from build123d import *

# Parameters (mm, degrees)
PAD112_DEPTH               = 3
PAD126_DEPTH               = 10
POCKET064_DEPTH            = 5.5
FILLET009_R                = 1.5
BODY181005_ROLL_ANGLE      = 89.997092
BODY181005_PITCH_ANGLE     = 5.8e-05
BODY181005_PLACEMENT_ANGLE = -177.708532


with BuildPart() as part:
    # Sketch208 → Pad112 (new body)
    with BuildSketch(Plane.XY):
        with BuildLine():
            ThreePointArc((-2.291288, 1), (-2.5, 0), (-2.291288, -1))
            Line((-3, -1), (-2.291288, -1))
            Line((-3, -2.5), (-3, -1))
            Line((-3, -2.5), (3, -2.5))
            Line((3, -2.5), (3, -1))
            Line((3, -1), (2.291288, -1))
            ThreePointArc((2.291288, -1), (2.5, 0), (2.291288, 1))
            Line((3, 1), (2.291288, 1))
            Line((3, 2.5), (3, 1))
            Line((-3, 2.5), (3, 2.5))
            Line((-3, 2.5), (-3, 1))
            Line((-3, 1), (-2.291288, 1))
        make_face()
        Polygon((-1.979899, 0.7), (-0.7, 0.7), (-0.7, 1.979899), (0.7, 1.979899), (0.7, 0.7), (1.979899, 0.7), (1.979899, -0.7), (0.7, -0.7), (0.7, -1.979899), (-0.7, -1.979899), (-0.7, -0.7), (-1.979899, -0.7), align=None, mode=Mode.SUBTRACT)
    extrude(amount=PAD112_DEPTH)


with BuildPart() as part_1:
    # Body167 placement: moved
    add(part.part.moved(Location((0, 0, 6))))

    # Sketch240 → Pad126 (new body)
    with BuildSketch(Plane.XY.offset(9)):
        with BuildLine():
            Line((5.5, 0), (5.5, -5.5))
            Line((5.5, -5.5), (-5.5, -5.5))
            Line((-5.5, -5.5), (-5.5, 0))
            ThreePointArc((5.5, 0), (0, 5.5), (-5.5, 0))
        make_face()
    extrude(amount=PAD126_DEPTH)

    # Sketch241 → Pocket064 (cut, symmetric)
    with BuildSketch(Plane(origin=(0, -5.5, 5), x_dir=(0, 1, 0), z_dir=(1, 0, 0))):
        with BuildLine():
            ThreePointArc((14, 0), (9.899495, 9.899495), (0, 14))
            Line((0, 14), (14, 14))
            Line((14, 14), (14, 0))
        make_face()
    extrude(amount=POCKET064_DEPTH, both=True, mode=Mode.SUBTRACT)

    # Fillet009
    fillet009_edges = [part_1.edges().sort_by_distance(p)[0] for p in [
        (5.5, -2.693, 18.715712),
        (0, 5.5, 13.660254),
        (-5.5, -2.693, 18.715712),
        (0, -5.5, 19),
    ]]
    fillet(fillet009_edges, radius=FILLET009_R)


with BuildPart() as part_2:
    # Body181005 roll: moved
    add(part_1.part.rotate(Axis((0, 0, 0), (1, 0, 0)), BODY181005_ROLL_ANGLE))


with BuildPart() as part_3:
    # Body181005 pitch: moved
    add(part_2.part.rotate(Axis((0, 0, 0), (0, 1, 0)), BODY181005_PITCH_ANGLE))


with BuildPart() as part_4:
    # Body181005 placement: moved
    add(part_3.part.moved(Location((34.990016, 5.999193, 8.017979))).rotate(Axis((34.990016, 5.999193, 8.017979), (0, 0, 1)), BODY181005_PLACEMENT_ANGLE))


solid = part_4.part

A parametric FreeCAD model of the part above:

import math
import FreeCAD as App
import Part
import Sketcher

V = App.Vector


def edges_at(feature, points):
    """Names of the edges that pass closest to the given points."""
    edges = feature.Shape.Edges
    near = lambda p: min(range(len(edges)), key=lambda i: edges[i].distToShape(Part.Vertex(*p))[0])
    return sorted({f"Edge{near(p) + 1}" for p in points})


def add_polygon(sketch, points):
    """Adds a closed chain of lines whose ends are joined by coincident constraints."""
    first, n = sketch.GeometryCount, len(points)
    for a, b in zip(points, points[1:] + points[:1]):
        sketch.addGeometry(Part.LineSegment(App.Vector(*a, 0), App.Vector(*b, 0)), False)
    for i in range(n):
        sketch.addConstraint(Sketcher.Constraint("Coincident", first + i, 2, first + (i + 1) % n, 1))

doc = App.newDocument("Part")
body = doc.addObject("PartDesign::Body", "Body")

# Sketch on XY plane
sketch1 = body.newObject("Sketcher::SketchObject", "Sketch")
sketch1.AttachmentSupport = (doc.getObject("XY_Plane"), [""])
sketch1.MapMode = "FlatFace"
sketch1.addGeometry(Part.ArcOfCircle(Part.Circle(V(0, 0, 0), V(0, 0, 1), 2.5), math.radians(156), math.radians(204)), False)  # 0
sketch1.addGeometry(Part.LineSegment(V(-2.3, -1, 0), V(-3, -1, 0)), False)  # 1
sketch1.addGeometry(Part.LineSegment(V(-3, -1, 0), V(-3, -2.5, 0)), False)  # 2
sketch1.addGeometry(Part.LineSegment(V(-3, -2.5, 0), V(3, -2.5, 0)), False)  # 3
sketch1.addGeometry(Part.LineSegment(V(3, -2.5, 0), V(3, -1, 0)), False)  # 4
sketch1.addGeometry(Part.LineSegment(V(3, -1, 0), V(2.3, -1, 0)), False)  # 5
sketch1.addGeometry(Part.ArcOfCircle(Part.Circle(V(0, 0, 0), V(0, 0, 1), 2.5), math.radians(-24), math.radians(24)), False)  # 6
sketch1.addGeometry(Part.LineSegment(V(2.3, 1, 0), V(3, 1, 0)), False)  # 7
sketch1.addGeometry(Part.LineSegment(V(3, 1, 0), V(3, 2.5, 0)), False)  # 8
sketch1.addGeometry(Part.LineSegment(V(3, 2.5, 0), V(-3, 2.5, 0)), False)  # 9
sketch1.addGeometry(Part.LineSegment(V(-3, 2.5, 0), V(-3, 1, 0)), False)  # 10
sketch1.addGeometry(Part.LineSegment(V(-3, 1, 0), V(-2.3, 1, 0)), False)  # 11
add_polygon(sketch1, [(-2, -0.7), (-2, 0.7), (-0.7, 0.7), (-0.7, 2), (0.7, 2), (0.7, 0.7), (2, 0.7), (2, -0.7), (0.7, -0.7), (0.7, -2), (-0.7, -2), (-0.7, -0.7)])  # lines 12-23
sketch1.addConstraint(Sketcher.Constraint("Coincident", 0, 2, 1, 1))
sketch1.addConstraint(Sketcher.Constraint("Coincident", 1, 2, 2, 1))
sketch1.addConstraint(Sketcher.Constraint("Coincident", 2, 2, 3, 1))
sketch1.addConstraint(Sketcher.Constraint("Coincident", 3, 2, 4, 1))
sketch1.addConstraint(Sketcher.Constraint("Coincident", 4, 2, 5, 1))
sketch1.addConstraint(Sketcher.Constraint("Coincident", 5, 2, 6, 1))
sketch1.addConstraint(Sketcher.Constraint("Coincident", 6, 2, 7, 1))
sketch1.addConstraint(Sketcher.Constraint("Coincident", 7, 2, 8, 1))
sketch1.addConstraint(Sketcher.Constraint("Coincident", 8, 2, 9, 1))
sketch1.addConstraint(Sketcher.Constraint("Coincident", 9, 2, 10, 1))
sketch1.addConstraint(Sketcher.Constraint("Coincident", 10, 2, 11, 1))
sketch1.addConstraint(Sketcher.Constraint("Coincident", 11, 2, 0, 1))
sketch1.addConstraint(Sketcher.Constraint("Horizontal", 1))
sketch1.addConstraint(Sketcher.Constraint("Vertical", 2))
sketch1.addConstraint(Sketcher.Constraint("Horizontal", 3))
sketch1.addConstraint(Sketcher.Constraint("Vertical", 4))
sketch1.addConstraint(Sketcher.Constraint("Horizontal", 5))
sketch1.addConstraint(Sketcher.Constraint("Horizontal", 7))
sketch1.addConstraint(Sketcher.Constraint("Vertical", 8))
sketch1.addConstraint(Sketcher.Constraint("Horizontal", 9))
sketch1.addConstraint(Sketcher.Constraint("Vertical", 10))
sketch1.addConstraint(Sketcher.Constraint("Horizontal", 11))
sketch1.addConstraint(Sketcher.Constraint("Vertical", 12))
sketch1.addConstraint(Sketcher.Constraint("Horizontal", 13))
sketch1.addConstraint(Sketcher.Constraint("Vertical", 14))
sketch1.addConstraint(Sketcher.Constraint("Horizontal", 15))
sketch1.addConstraint(Sketcher.Constraint("Vertical", 16))
sketch1.addConstraint(Sketcher.Constraint("Horizontal", 17))
sketch1.addConstraint(Sketcher.Constraint("Vertical", 18))
sketch1.addConstraint(Sketcher.Constraint("Horizontal", 19))
sketch1.addConstraint(Sketcher.Constraint("Vertical", 20))
sketch1.addConstraint(Sketcher.Constraint("Horizontal", 21))
sketch1.addConstraint(Sketcher.Constraint("Vertical", 22))
sketch1.addConstraint(Sketcher.Constraint("Horizontal", 23))
sketch1.addConstraint(Sketcher.Constraint("Coincident", 0, 3, -1, 1))
sketch1.addConstraint(Sketcher.Constraint("Coincident", 6, 3, -1, 1))
sketch1.addConstraint(Sketcher.Constraint("Equal", 0, 6))
sketch1.addConstraint(Sketcher.Constraint("Symmetric", 1, 2, 7, 2, -1, 1))
sketch1.addConstraint(Sketcher.Constraint("Symmetric", 3, 2, 9, 2, -1, 1))
sketch1.addConstraint(Sketcher.Constraint("Symmetric", 12, 2, 18, 2, -1, 1))
sketch1.addConstraint(Sketcher.Constraint("Symmetric", 14, 2, 20, 2, -1, 1))
sketch1.addConstraint(Sketcher.Constraint("Symmetric", 16, 2, 22, 2, -1, 1))
sketch1.addConstraint(Sketcher.Constraint("Symmetric", 1, 2, 4, 2, -2))
sketch1.addConstraint(Sketcher.Constraint("Symmetric", 13, 2, 16, 2, -2))
sketch1.addConstraint(Sketcher.Constraint("Horizontal", 7, 2, 10, 2))
sketch1.addConstraint(Sketcher.Constraint("Equal", 21, 12))
sketch1.addConstraint(Sketcher.Constraint("Equal", 23, 14))
sketch1.addConstraint(Sketcher.Constraint("Radius", 0, 2.500002))
sketch1.addConstraint(Sketcher.Constraint("DistanceX", 3, 1, 3, 2, 6.0))
sketch1.addConstraint(Sketcher.Constraint("DistanceX", 15, 1, 15, 2, 1.4))
sketch1.addConstraint(Sketcher.Constraint("DistanceY", 2, 2, 2, 1, 1.5))
sketch1.addConstraint(Sketcher.Constraint("DistanceY", 0, 2, -1, 1, 1.0))
sketch1.addConstraint(Sketcher.Constraint("DistanceX", 13, 1, 13, 2, 1.279899))
pad1 = body.newObject("PartDesign::Pad", "Pad")
pad1.Profile = sketch1
pad1.Length = 3
body2 = doc.addObject("PartDesign::Body", "Body001")
doc.recompute()

body.Placement = App.Placement(V(0, 0, 6), App.Rotation(V(0, 0, 1), 0))
boolean = body2.newObject("PartDesign::Boolean", "Boolean")
boolean.Type = "Fuse"
boolean.addObjects([body])

# Sketch on XY plane
sketch2 = body2.newObject("Sketcher::SketchObject", "Sketch001")
sketch2.AttachmentSupport = (doc.getObject("XY_Plane001"), [""])
sketch2.MapMode = "FlatFace"
sketch2.AttachmentOffset = App.Placement(V(0, 0, 9), App.Rotation())
sketch2.addGeometry(Part.LineSegment(V(6, -6, 0), V(6, 0, 0)), False)
sketch2.addGeometry(Part.ArcOfCircle(Part.Circle(V(0, 0, 0), V(0, 0, 1), 6), math.radians(0), math.radians(180)), False)
sketch2.addGeometry(Part.LineSegment(V(-6, 0, 0), V(-6, -6, 0)), False)
sketch2.addGeometry(Part.LineSegment(V(-6, -6, 0), V(6, -6, 0)), False)
sketch2.addConstraint(Sketcher.Constraint("Tangent", 0, 2, 1, 1))
sketch2.addConstraint(Sketcher.Constraint("Tangent", 1, 2, 2, 1))
sketch2.addConstraint(Sketcher.Constraint("Coincident", 2, 2, 3, 1))
sketch2.addConstraint(Sketcher.Constraint("Coincident", 3, 2, 0, 1))
sketch2.addConstraint(Sketcher.Constraint("Vertical", 0))
sketch2.addConstraint(Sketcher.Constraint("Vertical", 2))
sketch2.addConstraint(Sketcher.Constraint("Horizontal", 3))
sketch2.addConstraint(Sketcher.Constraint("Coincident", 1, 3, -1, 1))
sketch2.addConstraint(Sketcher.Constraint("Radius", 1, 5.5))
sketch2.addConstraint(Sketcher.Constraint("DistanceY", 0, 1, 0, 2, 5.5))
pad2 = body2.newObject("PartDesign::Pad", "Pad001")
pad2.Profile = sketch2
pad2.Length = 10

# Sketch on YZ plane
sketch3 = body2.newObject("Sketcher::SketchObject", "Sketch002")
sketch3.AttachmentSupport = (doc.getObject("YZ_Plane001"), [""])
sketch3.MapMode = "FlatFace"
sketch3.addGeometry(Part.ArcOfCircle(Part.Circle(V(-5, 5, 0), V(0, 0, 1), 14), math.radians(0), math.radians(90)), False)
sketch3.addGeometry(Part.LineSegment(V(8, 5, 0), V(8, 19, 0)), False)
sketch3.addGeometry(Part.LineSegment(V(8, 19, 0), V(-6, 19, 0)), False)
sketch3.addConstraint(Sketcher.Constraint("Tangent", 0, 1, 1, 1))
sketch3.addConstraint(Sketcher.Constraint("Coincident", 1, 2, 2, 1))
sketch3.addConstraint(Sketcher.Constraint("Tangent", 2, 2, 0, 2))
sketch3.addConstraint(Sketcher.Constraint("Vertical", 1))
sketch3.addConstraint(Sketcher.Constraint("Horizontal", 2))
sketch3.addConstraint(Sketcher.Constraint("Radius", 0, 14.0))
sketch3.addConstraint(Sketcher.Constraint("DistanceY", -1, 1, 0, 3, 5.0))
sketch3.addConstraint(Sketcher.Constraint("DistanceX", 0, 3, -1, 1, 5.5))
pocket1 = body2.newObject("PartDesign::Pocket", "Pocket")
pocket1.Profile = sketch3
pocket1.Length = 11
pocket1.Midplane = True
doc.recompute()

fillet = body2.newObject("PartDesign::Fillet", "Fillet")
fillet.Base = (pocket1, edges_at(pocket1, [
    (5.5, -2.693, 18.716),
    (0, 5.5, 13.66),
    (-5.5, -2.693, 18.716),
    (0, -5.5, 19),
]))
fillet.Radius = 1.5
body3 = doc.addObject("PartDesign::Body", "Body002")
doc.recompute()

body2.Placement = App.Placement(V(0, 0, 0), App.Rotation(V(1, 0, 0), 89.997092))
boolean2 = body3.newObject("PartDesign::Boolean", "Boolean001")
boolean2.Type = "Fuse"
boolean2.addObjects([body2])
body4 = doc.addObject("PartDesign::Body", "Body003")
doc.recompute()

body3.Placement = App.Placement(V(0, 0, 0), App.Rotation(V(0, 1, 0), 0.000058))
boolean3 = body4.newObject("PartDesign::Boolean", "Boolean002")
boolean3.Type = "Fuse"
boolean3.addObjects([body3])
body5 = doc.addObject("PartDesign::Body", "Body004")
doc.recompute()

body4.Placement = App.Placement(V(34.990016, 5.999193, 8.017979), App.Rotation(V(0, 0, 1), 182.291468))
boolean4 = body5.newObject("PartDesign::Boolean", "Boolean003")
boolean4.Type = "Fuse"
boolean4.addObjects([body4])

doc.recompute()
